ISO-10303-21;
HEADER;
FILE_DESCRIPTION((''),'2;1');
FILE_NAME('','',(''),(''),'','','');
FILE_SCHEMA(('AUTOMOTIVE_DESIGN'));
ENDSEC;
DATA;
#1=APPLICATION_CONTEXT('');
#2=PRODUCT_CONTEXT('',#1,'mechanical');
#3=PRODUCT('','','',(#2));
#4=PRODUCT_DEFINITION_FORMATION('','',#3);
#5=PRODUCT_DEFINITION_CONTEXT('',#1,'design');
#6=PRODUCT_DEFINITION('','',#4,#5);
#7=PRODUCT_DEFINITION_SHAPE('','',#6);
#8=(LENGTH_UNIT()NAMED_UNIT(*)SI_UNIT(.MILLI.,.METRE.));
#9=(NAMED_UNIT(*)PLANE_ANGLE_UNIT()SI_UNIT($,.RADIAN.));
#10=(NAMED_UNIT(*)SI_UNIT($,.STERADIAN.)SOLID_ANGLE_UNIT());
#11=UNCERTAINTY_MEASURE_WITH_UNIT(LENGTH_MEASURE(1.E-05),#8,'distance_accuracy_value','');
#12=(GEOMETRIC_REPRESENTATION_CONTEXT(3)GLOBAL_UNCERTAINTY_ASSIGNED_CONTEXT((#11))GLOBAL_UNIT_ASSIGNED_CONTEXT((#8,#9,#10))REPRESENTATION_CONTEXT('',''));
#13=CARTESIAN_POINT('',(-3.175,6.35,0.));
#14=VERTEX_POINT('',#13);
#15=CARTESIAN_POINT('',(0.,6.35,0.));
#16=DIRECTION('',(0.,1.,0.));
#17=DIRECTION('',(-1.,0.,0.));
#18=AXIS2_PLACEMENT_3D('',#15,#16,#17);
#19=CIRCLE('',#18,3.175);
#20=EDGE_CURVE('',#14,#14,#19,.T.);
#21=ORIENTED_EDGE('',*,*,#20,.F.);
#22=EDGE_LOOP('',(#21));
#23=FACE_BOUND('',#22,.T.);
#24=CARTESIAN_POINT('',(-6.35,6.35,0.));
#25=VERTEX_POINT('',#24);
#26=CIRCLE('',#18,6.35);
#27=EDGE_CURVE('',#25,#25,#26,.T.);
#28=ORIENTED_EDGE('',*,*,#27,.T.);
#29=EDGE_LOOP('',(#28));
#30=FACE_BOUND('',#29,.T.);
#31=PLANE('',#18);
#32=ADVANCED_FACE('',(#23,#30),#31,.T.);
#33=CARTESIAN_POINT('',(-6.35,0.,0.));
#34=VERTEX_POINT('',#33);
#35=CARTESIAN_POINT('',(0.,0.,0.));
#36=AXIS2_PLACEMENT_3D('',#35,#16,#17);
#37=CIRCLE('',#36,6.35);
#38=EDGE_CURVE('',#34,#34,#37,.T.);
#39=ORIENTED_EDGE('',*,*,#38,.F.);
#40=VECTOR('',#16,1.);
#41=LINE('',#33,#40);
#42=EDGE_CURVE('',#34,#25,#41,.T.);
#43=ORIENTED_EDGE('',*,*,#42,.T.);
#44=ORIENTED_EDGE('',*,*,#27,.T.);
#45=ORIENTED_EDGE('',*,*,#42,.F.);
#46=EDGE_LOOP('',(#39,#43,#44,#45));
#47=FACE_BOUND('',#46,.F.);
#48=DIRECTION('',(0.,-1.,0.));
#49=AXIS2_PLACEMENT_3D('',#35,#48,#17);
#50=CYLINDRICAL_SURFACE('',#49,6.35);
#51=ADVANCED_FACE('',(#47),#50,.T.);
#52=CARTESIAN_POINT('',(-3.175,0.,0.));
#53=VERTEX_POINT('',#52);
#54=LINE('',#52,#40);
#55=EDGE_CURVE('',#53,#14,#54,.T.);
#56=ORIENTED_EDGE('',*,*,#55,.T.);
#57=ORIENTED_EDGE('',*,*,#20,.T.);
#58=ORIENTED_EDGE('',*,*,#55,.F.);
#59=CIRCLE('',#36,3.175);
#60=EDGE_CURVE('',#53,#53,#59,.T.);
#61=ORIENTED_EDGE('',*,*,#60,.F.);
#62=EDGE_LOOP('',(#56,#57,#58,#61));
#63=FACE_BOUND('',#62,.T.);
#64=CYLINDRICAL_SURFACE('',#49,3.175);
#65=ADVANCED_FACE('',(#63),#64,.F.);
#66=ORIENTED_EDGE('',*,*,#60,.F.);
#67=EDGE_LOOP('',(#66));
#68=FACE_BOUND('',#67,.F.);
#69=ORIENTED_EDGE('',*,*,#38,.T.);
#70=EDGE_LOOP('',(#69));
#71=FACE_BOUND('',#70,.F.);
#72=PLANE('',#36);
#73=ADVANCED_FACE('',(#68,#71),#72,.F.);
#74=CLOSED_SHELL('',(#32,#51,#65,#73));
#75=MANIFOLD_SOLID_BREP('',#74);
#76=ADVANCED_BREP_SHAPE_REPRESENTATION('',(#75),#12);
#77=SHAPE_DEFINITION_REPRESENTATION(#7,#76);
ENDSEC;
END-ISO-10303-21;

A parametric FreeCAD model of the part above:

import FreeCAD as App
import Part
import Sketcher
from FreeCAD import Vector
Q = App.Units.Quantity

doc = App.newDocument("Part")
body = doc.addObject("PartDesign::Body", "Body")

# Sketch on XZ plane
sketch1 = body.newObject("Sketcher::SketchObject", "Sketch")
sketch1.AttachmentSupport = (doc.getObject("XZ_Plane"), [""])
sketch1.MapMode = "FlatFace"
sketch1.addGeometry([
    Part.Circle(Vector(0, 0, 0), Vector(0, 0, 1), 6.35),
    Part.Circle(Vector(0, 0, 0), Vector(0, 0, 1), 3.175),
], False)
sketch1.addConstraint([
    Sketcher.Constraint("Coincident", 0, 3, -1, 1),
    Sketcher.Constraint("Coincident", 1, 3, -1, 1),
    Sketcher.Constraint("Diameter", 0, Q("0.5 in")),
    Sketcher.Constraint("Diameter", 1, Q("0.25 in")),
])
pad1 = body.newObject("PartDesign::Pad", "Pad")
pad1.Profile = sketch1
pad1.Length = Q("0.25 in")
pad1.Reversed = True

doc.recompute()
